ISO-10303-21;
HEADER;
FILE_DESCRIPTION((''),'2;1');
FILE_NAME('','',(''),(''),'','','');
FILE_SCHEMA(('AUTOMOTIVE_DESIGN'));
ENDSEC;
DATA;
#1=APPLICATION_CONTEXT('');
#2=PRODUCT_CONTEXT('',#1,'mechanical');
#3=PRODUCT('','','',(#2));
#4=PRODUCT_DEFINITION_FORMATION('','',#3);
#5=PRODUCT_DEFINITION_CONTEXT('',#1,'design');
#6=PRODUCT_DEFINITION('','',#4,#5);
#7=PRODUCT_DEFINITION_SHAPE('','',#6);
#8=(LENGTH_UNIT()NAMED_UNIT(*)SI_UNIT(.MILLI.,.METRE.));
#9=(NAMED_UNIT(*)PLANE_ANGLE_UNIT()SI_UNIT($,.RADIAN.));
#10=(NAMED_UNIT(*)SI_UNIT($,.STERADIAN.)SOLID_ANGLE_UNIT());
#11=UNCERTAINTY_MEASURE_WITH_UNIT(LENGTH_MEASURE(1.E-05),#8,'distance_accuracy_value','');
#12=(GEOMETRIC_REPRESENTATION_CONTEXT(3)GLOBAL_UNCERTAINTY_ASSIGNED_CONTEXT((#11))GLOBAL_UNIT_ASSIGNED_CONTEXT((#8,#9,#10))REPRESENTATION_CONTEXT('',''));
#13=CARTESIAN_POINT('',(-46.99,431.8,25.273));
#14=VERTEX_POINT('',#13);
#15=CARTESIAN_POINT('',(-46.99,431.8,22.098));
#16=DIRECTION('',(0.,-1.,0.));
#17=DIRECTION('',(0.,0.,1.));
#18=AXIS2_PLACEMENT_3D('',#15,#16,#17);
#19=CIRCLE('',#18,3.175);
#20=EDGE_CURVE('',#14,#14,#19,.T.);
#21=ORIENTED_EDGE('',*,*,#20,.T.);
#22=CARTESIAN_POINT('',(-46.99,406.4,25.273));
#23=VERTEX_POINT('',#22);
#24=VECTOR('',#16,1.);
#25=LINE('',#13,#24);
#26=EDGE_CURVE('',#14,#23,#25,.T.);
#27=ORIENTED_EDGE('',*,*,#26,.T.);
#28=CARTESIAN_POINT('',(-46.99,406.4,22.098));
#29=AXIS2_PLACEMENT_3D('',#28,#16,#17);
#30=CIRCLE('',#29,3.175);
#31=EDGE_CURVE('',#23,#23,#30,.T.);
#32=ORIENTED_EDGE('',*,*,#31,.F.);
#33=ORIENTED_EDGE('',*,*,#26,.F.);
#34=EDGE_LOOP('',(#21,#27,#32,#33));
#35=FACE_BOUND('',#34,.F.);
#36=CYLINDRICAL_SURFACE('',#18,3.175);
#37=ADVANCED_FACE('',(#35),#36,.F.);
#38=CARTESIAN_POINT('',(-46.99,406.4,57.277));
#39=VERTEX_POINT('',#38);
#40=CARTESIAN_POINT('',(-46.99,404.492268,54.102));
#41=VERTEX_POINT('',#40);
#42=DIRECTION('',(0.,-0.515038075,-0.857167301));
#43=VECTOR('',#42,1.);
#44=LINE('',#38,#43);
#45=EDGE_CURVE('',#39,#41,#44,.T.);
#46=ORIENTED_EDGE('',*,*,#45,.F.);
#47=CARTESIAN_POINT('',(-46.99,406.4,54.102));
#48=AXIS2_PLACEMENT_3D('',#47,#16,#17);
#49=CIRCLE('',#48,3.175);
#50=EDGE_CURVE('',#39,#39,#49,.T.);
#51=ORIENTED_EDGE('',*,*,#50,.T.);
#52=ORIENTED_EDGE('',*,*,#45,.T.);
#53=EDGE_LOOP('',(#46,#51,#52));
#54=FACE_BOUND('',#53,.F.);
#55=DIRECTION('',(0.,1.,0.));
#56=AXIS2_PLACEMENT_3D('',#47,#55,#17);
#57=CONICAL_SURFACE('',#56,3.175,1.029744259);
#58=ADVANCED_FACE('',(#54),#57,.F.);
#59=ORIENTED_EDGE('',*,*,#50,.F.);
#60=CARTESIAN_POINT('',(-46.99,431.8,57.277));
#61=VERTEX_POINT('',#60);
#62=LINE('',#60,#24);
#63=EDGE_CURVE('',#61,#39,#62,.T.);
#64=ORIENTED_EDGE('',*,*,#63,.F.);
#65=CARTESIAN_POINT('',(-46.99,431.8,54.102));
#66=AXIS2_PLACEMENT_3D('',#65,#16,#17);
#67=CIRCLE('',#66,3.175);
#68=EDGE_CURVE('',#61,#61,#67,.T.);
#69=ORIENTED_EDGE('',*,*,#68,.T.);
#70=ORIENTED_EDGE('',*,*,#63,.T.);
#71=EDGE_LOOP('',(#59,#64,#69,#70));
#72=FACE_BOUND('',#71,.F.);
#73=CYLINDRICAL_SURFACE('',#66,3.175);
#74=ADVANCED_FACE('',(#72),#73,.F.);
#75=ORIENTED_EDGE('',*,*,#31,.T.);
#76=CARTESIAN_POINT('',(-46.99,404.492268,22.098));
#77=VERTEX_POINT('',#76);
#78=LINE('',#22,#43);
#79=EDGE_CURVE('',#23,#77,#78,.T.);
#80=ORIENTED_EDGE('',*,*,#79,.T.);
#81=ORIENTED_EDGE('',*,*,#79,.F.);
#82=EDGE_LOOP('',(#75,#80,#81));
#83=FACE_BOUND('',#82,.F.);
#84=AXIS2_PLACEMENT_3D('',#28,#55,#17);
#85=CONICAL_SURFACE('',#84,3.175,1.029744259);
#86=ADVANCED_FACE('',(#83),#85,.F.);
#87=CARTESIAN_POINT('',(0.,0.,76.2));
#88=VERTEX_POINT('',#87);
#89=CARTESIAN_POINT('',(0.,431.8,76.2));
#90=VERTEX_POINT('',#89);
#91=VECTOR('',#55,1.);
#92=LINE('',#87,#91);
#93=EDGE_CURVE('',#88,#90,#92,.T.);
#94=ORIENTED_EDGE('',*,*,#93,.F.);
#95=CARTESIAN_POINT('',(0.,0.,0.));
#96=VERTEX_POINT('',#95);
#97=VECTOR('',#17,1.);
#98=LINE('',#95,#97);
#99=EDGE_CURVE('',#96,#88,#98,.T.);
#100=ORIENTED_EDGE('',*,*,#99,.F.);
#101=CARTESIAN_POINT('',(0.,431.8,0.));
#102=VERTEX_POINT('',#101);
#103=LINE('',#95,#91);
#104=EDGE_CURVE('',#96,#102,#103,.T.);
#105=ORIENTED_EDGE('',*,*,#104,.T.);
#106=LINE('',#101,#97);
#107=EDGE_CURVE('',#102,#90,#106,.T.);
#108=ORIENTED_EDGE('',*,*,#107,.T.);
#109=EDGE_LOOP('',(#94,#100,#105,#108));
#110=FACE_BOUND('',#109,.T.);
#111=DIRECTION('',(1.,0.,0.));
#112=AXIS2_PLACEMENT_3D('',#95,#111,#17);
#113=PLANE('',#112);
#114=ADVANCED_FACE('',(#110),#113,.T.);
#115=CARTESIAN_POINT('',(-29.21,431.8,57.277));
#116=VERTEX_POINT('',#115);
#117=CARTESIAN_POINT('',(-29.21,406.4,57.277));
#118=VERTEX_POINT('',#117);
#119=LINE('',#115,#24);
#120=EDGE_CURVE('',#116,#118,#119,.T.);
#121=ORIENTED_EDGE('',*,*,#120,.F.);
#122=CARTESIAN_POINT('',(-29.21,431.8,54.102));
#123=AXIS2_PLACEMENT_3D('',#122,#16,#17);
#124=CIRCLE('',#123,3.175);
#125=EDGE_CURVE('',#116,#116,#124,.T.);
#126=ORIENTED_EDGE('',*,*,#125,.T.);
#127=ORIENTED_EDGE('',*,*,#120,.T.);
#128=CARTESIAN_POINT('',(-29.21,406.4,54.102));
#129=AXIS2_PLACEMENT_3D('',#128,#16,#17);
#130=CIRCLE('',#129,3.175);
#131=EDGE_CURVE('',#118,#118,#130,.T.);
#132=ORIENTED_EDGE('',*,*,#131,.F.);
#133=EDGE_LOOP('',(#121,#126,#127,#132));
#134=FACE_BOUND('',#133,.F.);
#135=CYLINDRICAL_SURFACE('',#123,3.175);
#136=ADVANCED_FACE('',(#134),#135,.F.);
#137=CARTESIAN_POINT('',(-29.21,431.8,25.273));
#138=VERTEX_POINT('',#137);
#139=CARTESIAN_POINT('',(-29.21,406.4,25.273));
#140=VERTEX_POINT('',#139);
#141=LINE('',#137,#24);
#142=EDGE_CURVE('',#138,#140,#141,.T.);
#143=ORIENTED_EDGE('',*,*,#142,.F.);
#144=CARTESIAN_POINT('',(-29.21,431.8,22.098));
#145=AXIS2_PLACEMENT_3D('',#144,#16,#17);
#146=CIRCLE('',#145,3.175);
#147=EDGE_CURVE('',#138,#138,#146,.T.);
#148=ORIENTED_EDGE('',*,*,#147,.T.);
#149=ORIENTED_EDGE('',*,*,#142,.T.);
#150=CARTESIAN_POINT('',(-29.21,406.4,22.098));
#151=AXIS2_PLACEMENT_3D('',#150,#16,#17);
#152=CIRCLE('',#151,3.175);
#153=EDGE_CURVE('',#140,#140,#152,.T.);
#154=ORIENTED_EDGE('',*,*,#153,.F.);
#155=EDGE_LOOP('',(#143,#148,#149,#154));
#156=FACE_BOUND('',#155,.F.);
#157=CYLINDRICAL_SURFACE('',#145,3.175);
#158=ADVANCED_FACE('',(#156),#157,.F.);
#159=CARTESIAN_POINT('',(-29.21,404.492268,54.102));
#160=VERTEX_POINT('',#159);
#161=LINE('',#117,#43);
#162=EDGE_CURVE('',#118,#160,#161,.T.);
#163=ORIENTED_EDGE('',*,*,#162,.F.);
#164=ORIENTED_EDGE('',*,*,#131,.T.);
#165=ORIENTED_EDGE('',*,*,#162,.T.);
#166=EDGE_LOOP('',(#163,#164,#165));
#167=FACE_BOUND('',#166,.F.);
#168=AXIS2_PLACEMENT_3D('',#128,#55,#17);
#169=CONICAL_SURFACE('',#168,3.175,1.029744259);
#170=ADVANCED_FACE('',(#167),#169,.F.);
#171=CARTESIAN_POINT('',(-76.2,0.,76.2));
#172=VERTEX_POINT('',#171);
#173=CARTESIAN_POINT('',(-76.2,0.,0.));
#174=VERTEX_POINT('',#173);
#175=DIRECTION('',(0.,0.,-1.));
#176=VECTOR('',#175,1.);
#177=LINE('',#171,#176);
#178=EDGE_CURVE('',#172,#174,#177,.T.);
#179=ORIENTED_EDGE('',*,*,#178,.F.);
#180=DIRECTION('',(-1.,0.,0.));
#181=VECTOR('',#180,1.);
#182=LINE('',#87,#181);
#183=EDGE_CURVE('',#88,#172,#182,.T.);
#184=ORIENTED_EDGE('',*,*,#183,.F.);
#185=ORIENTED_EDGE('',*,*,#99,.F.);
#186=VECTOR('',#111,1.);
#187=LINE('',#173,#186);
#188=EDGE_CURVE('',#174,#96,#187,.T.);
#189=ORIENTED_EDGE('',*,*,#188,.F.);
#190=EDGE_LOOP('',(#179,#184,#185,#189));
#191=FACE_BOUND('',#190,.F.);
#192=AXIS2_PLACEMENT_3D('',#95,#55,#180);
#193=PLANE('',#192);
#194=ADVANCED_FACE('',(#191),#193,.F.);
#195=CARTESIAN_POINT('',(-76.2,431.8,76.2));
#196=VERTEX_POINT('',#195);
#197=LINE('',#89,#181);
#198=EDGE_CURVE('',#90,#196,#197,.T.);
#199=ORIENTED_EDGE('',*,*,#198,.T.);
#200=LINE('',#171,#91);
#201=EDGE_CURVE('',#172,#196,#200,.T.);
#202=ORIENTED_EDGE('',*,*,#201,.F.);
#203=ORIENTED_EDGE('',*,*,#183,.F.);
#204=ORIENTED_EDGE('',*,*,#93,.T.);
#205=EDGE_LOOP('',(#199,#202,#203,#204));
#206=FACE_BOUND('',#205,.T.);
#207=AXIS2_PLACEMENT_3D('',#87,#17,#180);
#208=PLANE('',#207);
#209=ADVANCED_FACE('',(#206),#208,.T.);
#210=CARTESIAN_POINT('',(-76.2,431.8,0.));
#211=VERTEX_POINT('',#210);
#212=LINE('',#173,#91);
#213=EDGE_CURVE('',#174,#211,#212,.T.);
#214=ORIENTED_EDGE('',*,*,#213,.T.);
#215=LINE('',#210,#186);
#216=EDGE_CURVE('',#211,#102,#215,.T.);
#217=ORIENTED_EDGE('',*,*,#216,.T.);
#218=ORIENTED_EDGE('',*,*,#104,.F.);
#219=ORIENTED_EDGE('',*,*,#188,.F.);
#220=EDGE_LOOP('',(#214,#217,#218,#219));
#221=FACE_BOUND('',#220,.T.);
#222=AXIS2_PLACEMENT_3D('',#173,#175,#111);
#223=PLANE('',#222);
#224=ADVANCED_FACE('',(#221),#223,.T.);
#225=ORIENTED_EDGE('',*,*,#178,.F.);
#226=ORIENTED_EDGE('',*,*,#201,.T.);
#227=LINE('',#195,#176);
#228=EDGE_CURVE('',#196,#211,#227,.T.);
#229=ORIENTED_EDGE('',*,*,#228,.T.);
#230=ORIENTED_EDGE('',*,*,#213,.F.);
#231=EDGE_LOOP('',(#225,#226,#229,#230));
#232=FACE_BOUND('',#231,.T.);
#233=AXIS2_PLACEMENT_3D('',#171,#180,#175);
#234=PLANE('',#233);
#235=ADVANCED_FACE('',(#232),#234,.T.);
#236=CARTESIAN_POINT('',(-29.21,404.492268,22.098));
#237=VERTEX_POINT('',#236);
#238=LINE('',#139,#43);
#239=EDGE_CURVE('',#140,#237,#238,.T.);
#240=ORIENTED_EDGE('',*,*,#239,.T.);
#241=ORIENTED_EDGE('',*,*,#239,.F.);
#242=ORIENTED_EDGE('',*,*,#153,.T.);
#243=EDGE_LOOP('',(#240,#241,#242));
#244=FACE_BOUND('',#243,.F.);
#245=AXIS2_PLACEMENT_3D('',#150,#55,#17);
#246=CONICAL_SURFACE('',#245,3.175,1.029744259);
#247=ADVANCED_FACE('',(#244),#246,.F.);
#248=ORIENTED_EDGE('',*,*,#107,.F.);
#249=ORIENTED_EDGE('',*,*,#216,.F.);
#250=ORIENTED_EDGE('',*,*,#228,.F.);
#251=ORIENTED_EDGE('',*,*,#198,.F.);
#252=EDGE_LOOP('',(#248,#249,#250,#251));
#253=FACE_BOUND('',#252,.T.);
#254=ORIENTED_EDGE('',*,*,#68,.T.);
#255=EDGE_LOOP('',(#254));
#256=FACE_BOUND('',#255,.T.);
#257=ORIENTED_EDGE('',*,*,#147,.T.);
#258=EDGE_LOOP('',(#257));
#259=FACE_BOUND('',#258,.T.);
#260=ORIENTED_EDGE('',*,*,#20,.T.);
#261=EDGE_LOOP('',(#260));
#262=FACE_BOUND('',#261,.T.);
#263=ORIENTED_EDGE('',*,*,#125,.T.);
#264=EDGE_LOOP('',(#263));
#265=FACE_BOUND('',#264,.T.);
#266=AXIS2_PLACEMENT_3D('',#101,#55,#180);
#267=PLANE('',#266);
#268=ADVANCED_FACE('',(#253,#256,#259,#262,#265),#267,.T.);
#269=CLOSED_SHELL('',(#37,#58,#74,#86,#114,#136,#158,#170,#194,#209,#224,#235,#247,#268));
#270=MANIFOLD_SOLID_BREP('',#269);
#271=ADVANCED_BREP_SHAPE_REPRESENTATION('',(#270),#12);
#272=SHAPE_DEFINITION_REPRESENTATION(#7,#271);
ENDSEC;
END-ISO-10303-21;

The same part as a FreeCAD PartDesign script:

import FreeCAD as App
import Part
import Sketcher
from FreeCAD import Vector
Q = App.Units.Quantity

doc = App.newDocument("Part")
body = doc.addObject("PartDesign::Body", "Body")

sketch1 = body.newObject("Sketcher::SketchObject", "Sketch")
sketch1.AttachmentSupport = (doc.getObject("XZ_Plane"), [""])
sketch1.MapMode = "FlatFace"
sketch1.addGeometry([
    Part.LineSegment(Vector(0, 76.2, 0), Vector(0, 0, 0)),
    Part.LineSegment(Vector(0, 0, 0), Vector(-76.2, 0, 0)),
    Part.LineSegment(Vector(-76.2, 0, 0), Vector(-76.2, 76.2, 0)),
    Part.LineSegment(Vector(-76.2, 76.2, 0), Vector(0, 76.2, 0)),
], False)
sketch1.addConstraint([
    Sketcher.Constraint("Coincident", 0, 2, 1, 1),
    Sketcher.Constraint("Coincident", 1, 2, 2, 1),
    Sketcher.Constraint("Coincident", 2, 2, 3, 1),
    Sketcher.Constraint("Coincident", 3, 2, 0, 1),
    Sketcher.Constraint("Vertical", 0),
    Sketcher.Constraint("Horizontal", 1),
    Sketcher.Constraint("Vertical", 2),
    Sketcher.Constraint("Horizontal", 3),
    Sketcher.Constraint("Coincident", 0, 2, -1, 1),
    Sketcher.Constraint("Equal", 3, 0),
    Sketcher.Constraint("DistanceX", 1, 2, 1, 1, Q("3 in")),
])
pad1 = body.newObject("PartDesign::Pad", "Pad")
pad1.Profile = sketch1
pad1.Length = Q("17 in")
pad1.Reversed = True

sketch2 = body.newObject("Sketcher::SketchObject", "Sketch001")
sketch2.AttachmentSupport = (doc.getObject("XZ_Plane"), [""])
sketch2.MapMode = "FlatFace"
sketch2.AttachmentOffset = App.Placement(Vector(0, 0, -17 * 25.4), App.Rotation())
sketch2.addGeometry([
    Part.Circle(Vector(-46.99, 54.102, 0), Vector(0, 0, 1), 3.175),
    Part.Circle(Vector(-29.21, 54.102, 0), Vector(0, 0, 1), 3.175),
    Part.Circle(Vector(-29.21, 22.098, 0), Vector(0, 0, 1), 3.175),
    Part.Circle(Vector(-46.99, 22.098, 0), Vector(0, 0, 1), 3.175),
], False)
sketch2.addConstraint([
    Sketcher.Constraint("Equal", 0, 1),
    Sketcher.Constraint("Equal", 1, 2),
    Sketcher.Constraint("Equal", 2, 3),
    Sketcher.Constraint("Horizontal", 0, 3, 1, 3),
    Sketcher.Constraint("Horizontal", 2, 3, 3, 3),
    Sketcher.Constraint("Vertical", 1, 3, 2, 3),
    Sketcher.Constraint("Vertical", 0, 3, 3, 3),
    Sketcher.Constraint("Diameter", 0, Q("0.25 in")),
    Sketcher.Constraint("DistanceX", 0, 3, 1, 3, Q("0.7 in")),
    Sketcher.Constraint("DistanceX", 0, 3, -1, 1, Q("1.85 in")),
    Sketcher.Constraint("DistanceY", -1, 1, 0, 3, Q("2.13 in")),
    Sketcher.Constraint("DistanceY", -1, 1, 2, 3, Q("0.87 in")),
])
doc.recompute()
hole = body.newObject("PartDesign::Hole", "Hole")
hole.Profile = sketch2
hole.ThreadType = "None"
hole.Diameter = Q("0.25 in")
hole.DepthType = "Dimension"
hole.Depth = Q("1 in")
hole.DrillPoint = "Angled"
hole.DrillPointAngle = 118
hole.Reversed = True

doc.recompute()
